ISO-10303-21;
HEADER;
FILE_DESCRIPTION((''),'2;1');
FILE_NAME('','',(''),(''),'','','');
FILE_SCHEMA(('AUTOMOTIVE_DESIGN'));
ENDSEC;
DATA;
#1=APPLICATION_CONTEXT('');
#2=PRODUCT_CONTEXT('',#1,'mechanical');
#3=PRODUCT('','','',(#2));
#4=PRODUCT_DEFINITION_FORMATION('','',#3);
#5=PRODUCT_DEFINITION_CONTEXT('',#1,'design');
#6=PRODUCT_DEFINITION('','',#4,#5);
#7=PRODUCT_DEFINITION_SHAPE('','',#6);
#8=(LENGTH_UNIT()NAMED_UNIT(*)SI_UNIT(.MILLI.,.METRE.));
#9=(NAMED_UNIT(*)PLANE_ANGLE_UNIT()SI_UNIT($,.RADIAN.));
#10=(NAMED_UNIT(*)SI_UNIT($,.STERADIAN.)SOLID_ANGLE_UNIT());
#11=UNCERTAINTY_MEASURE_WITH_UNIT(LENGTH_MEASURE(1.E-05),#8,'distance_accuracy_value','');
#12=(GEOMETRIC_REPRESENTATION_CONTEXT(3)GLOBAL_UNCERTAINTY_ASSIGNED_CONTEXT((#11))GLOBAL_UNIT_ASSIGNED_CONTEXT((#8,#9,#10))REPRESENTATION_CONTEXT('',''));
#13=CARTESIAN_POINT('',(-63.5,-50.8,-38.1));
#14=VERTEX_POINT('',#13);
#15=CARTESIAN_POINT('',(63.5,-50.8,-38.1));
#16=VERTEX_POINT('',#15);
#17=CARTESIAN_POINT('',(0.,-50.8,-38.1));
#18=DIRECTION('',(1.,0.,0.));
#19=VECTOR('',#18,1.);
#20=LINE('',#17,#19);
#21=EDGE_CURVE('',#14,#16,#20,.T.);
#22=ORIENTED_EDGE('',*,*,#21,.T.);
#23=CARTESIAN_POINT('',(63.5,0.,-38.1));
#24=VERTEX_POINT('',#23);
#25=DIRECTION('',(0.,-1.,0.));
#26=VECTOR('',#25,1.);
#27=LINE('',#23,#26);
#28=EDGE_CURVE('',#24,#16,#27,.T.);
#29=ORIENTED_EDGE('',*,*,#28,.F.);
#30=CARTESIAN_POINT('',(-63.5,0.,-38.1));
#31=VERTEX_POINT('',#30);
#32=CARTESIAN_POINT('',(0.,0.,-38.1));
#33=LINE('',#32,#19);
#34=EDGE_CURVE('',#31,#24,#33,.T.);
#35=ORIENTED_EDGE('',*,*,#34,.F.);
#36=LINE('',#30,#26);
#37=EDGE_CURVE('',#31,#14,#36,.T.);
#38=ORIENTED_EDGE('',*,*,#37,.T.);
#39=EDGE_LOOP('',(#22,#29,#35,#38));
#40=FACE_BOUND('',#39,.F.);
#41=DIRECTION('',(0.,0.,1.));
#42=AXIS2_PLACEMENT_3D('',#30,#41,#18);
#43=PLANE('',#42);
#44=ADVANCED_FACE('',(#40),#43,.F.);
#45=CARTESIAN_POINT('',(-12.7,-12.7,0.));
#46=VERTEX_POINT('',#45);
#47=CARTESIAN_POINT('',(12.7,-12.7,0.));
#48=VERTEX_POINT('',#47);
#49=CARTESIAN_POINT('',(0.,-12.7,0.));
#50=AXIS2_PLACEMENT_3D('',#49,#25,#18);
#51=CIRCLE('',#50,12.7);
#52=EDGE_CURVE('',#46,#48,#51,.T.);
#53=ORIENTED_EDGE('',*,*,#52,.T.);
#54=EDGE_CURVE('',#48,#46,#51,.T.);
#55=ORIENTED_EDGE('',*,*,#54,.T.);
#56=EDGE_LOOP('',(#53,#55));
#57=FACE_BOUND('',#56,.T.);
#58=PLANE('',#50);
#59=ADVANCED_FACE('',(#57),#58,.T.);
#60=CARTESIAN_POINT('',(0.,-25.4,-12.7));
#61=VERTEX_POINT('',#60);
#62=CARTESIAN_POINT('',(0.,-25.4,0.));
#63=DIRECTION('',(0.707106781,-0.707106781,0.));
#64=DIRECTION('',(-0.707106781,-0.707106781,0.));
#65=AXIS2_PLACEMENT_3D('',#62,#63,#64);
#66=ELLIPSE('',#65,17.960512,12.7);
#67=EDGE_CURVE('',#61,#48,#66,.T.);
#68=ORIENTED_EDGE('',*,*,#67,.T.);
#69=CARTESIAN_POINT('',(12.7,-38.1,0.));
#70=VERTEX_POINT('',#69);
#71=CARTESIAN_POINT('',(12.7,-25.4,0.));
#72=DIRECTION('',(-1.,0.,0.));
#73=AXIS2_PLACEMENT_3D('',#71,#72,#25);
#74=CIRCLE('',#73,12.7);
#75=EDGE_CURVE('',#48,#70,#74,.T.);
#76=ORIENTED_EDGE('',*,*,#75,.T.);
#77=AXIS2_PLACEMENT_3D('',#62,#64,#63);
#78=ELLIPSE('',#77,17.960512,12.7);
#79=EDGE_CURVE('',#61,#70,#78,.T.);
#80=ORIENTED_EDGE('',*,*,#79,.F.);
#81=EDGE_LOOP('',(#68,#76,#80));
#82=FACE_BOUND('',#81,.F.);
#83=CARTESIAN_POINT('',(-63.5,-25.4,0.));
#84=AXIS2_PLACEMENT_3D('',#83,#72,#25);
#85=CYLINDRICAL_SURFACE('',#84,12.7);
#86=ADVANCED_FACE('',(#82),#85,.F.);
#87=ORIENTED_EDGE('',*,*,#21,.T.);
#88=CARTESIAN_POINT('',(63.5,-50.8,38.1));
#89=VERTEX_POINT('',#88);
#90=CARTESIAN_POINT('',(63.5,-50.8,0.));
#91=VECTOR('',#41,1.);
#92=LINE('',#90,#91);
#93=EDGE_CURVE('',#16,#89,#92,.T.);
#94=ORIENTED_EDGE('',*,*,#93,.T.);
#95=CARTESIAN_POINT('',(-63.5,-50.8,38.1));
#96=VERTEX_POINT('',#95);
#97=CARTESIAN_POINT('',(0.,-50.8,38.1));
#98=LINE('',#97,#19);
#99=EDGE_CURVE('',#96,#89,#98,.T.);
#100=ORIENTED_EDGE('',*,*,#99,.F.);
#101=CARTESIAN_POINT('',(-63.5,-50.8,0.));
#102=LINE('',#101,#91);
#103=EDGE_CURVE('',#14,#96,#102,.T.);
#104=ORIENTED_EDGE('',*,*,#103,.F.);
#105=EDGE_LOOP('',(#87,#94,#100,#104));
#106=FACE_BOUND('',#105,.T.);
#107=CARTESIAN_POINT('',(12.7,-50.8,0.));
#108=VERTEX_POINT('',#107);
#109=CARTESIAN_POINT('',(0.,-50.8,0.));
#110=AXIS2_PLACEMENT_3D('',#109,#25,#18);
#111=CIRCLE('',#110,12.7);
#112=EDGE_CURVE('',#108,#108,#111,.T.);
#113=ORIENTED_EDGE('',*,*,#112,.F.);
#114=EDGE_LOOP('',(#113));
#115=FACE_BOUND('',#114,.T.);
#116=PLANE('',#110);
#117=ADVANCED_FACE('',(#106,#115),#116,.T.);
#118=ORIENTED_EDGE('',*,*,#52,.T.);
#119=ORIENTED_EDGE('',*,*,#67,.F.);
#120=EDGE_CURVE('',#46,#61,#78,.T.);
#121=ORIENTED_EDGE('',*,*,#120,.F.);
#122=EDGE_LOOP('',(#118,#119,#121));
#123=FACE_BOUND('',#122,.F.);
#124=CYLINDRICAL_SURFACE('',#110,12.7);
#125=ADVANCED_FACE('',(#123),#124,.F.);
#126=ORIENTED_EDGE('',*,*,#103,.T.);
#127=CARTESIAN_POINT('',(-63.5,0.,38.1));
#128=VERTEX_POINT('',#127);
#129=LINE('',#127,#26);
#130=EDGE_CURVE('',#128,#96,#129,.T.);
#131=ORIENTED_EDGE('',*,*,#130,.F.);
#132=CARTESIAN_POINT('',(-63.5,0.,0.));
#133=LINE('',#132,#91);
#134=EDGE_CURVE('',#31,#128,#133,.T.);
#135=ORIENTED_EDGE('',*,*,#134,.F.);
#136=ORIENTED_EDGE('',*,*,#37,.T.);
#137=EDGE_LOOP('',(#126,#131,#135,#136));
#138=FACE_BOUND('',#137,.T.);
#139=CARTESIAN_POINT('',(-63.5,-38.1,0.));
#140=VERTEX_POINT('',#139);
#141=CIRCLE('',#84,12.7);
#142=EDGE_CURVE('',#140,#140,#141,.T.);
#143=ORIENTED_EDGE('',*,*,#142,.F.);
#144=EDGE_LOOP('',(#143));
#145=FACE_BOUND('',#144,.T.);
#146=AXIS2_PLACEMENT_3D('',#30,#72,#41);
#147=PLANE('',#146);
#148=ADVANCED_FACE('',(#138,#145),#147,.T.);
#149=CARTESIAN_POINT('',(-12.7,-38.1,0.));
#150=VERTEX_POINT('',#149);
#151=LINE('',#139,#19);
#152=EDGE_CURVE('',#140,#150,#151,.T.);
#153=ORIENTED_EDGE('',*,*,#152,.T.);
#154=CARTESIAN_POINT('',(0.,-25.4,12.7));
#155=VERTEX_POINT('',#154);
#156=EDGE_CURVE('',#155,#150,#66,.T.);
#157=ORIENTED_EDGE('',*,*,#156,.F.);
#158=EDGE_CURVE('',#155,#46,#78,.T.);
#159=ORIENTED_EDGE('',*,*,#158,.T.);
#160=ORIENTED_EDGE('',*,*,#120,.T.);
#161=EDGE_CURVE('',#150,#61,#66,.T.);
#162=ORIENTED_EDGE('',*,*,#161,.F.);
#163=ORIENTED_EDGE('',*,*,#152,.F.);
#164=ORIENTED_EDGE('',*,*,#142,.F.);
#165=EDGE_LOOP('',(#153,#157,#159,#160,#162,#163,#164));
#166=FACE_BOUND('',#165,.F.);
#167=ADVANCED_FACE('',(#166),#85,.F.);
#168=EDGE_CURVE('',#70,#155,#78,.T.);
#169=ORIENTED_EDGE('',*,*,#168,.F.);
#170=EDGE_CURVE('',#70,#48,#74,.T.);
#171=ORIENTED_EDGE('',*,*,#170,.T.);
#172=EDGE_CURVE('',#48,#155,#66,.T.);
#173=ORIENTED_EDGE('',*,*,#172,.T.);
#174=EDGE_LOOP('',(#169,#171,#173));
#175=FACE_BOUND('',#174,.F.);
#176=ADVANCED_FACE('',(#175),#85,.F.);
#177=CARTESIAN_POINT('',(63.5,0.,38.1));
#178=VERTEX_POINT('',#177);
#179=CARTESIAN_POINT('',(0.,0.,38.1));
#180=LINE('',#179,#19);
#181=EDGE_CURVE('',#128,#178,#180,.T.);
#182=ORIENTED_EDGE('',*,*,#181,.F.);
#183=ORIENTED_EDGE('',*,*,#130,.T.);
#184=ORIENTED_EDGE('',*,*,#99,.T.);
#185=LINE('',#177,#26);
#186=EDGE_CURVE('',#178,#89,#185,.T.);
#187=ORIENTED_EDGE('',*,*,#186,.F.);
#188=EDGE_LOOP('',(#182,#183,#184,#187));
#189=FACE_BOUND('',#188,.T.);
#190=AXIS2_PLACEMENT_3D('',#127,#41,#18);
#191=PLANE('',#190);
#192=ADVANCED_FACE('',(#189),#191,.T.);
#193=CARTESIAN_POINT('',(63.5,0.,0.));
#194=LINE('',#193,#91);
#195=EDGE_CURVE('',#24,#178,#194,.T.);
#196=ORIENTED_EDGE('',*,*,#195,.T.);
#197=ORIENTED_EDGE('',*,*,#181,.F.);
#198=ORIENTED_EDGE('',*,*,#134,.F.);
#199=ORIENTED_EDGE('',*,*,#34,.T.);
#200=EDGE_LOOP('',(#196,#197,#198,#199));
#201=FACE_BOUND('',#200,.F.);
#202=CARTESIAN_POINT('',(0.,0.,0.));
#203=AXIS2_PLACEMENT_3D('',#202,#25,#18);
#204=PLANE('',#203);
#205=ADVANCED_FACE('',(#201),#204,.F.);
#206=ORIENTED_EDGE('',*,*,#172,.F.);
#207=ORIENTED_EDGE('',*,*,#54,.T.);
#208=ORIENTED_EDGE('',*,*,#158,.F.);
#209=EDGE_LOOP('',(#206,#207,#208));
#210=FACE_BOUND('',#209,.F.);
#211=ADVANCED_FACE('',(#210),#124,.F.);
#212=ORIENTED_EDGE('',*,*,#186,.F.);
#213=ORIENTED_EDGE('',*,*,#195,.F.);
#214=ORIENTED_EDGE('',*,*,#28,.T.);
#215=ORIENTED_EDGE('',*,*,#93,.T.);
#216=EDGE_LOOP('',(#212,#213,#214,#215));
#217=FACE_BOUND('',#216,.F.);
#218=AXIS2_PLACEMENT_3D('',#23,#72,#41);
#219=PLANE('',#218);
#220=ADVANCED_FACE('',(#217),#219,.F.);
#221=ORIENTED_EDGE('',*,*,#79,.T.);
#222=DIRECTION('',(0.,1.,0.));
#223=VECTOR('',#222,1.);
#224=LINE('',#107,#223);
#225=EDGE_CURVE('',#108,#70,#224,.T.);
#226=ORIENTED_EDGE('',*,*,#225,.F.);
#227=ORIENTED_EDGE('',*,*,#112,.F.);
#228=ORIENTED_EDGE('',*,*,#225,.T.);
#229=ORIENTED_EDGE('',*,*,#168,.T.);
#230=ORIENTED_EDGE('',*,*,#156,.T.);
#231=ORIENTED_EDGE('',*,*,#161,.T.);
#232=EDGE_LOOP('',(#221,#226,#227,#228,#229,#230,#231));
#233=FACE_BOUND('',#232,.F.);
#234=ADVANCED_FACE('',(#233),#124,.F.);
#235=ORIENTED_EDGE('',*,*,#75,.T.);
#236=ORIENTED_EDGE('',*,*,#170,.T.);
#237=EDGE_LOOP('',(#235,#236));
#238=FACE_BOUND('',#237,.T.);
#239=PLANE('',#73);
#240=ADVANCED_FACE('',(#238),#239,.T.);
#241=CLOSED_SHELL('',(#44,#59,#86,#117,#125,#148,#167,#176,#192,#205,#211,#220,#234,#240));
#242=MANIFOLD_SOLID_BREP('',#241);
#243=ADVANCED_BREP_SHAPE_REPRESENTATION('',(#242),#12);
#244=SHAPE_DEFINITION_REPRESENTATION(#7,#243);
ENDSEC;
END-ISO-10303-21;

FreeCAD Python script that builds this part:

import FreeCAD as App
import Part
import Sketcher
Q = App.Units.Quantity

doc = App.newDocument("Part")
body = doc.addObject("PartDesign::Body", "Body")

# Sketch on XZ plane
sketch1 = doc.addObject("Sketcher::SketchObject", "Sketch")
body.addObject(sketch1)
sketch1.AttachmentSupport = (doc.XZ_Plane, [""])
sketch1.MapMode = "FlatFace"
sketch1.addGeometry([
    Part.LineSegment(App.Vector(-64, 38, 0), App.Vector(-64, -38, 0)),
    Part.LineSegment(App.Vector(-64, -38, 0), App.Vector(64, -38, 0)),
    Part.LineSegment(App.Vector(64, -38, 0), App.Vector(64, 38, 0)),
    Part.LineSegment(App.Vector(64, 38, 0), App.Vector(-64, 38, 0)),
], False)
sketch1.addConstraint([
    Sketcher.Constraint("Coincident", 0, 2, 1, 1),
    Sketcher.Constraint("Coincident", 1, 2, 2, 1),
    Sketcher.Constraint("Coincident", 2, 2, 3, 1),
    Sketcher.Constraint("Coincident", 3, 2, 0, 1),
    Sketcher.Constraint("Vertical", 0),
    Sketcher.Constraint("Horizontal", 1),
    Sketcher.Constraint("Vertical", 2),
    Sketcher.Constraint("Horizontal", 3),
    Sketcher.Constraint("Symmetric", 0, 2, 2, 2, -1, 1),
    Sketcher.Constraint("DistanceX", 1, 1, 1, 2, Q("5 in")),
    Sketcher.Constraint("DistanceY", 0, 2, 0, 1, Q("3 in")),
])
pad1 = doc.addObject("PartDesign::Pad", "Pad")
body.addObject(pad1)
pad1.Profile = sketch1
pad1.Length = Q("2 in")

# Sketch on XZ plane
sketch2 = doc.addObject("Sketcher::SketchObject", "Sketch001")
body.addObject(sketch2)
sketch2.AttachmentSupport = (doc.XZ_Plane, [""])
sketch2.MapMode = "FlatFace"
sketch2.AttachmentOffset = App.Placement(App.Vector(0, 0, 2 * 25.4), App.Rotation())
sketch2.addGeometry(Part.Circle(App.Vector(0, 0, 0), App.Vector(0, 0, 1), 13), False)
sketch2.addConstraint([
    Sketcher.Constraint("Coincident", 0, 3, -1, 1),
    Sketcher.Constraint("Diameter", 0, Q("1 in")),
])
pocket1 = doc.addObject("PartDesign::Pocket", "Pocket")
body.addObject(pocket1)
pocket1.Profile = sketch2
pocket1.Length = Q("1.5 in")

# Sketch on YZ plane
sketch3 = doc.addObject("Sketcher::SketchObject", "Sketch002")
body.addObject(sketch3)
sketch3.AttachmentSupport = (doc.YZ_Plane, [""])
sketch3.MapMode = "FlatFace"
sketch3.AttachmentOffset = App.Placement(App.Vector(0, 0, -2.5 * 25.4), App.Rotation())
sketch3.addGeometry(Part.Circle(App.Vector(-25, 0, 0), App.Vector(0, 0, 1), 13), False)
sketch3.addConstraint([
    Sketcher.Constraint("PointOnObject", 0, 3, -1),
    Sketcher.Constraint("Diameter", 0, Q("1 in")),
    Sketcher.Constraint("DistanceX", 0, 3, -1, 1, Q("1 in")),
])
pocket2 = doc.addObject("PartDesign::Pocket", "Pocket001")
body.addObject(pocket2)
pocket2.Profile = sketch3
pocket2.Length = Q("3 in")
pocket2.Reversed = True

doc.recompute()
